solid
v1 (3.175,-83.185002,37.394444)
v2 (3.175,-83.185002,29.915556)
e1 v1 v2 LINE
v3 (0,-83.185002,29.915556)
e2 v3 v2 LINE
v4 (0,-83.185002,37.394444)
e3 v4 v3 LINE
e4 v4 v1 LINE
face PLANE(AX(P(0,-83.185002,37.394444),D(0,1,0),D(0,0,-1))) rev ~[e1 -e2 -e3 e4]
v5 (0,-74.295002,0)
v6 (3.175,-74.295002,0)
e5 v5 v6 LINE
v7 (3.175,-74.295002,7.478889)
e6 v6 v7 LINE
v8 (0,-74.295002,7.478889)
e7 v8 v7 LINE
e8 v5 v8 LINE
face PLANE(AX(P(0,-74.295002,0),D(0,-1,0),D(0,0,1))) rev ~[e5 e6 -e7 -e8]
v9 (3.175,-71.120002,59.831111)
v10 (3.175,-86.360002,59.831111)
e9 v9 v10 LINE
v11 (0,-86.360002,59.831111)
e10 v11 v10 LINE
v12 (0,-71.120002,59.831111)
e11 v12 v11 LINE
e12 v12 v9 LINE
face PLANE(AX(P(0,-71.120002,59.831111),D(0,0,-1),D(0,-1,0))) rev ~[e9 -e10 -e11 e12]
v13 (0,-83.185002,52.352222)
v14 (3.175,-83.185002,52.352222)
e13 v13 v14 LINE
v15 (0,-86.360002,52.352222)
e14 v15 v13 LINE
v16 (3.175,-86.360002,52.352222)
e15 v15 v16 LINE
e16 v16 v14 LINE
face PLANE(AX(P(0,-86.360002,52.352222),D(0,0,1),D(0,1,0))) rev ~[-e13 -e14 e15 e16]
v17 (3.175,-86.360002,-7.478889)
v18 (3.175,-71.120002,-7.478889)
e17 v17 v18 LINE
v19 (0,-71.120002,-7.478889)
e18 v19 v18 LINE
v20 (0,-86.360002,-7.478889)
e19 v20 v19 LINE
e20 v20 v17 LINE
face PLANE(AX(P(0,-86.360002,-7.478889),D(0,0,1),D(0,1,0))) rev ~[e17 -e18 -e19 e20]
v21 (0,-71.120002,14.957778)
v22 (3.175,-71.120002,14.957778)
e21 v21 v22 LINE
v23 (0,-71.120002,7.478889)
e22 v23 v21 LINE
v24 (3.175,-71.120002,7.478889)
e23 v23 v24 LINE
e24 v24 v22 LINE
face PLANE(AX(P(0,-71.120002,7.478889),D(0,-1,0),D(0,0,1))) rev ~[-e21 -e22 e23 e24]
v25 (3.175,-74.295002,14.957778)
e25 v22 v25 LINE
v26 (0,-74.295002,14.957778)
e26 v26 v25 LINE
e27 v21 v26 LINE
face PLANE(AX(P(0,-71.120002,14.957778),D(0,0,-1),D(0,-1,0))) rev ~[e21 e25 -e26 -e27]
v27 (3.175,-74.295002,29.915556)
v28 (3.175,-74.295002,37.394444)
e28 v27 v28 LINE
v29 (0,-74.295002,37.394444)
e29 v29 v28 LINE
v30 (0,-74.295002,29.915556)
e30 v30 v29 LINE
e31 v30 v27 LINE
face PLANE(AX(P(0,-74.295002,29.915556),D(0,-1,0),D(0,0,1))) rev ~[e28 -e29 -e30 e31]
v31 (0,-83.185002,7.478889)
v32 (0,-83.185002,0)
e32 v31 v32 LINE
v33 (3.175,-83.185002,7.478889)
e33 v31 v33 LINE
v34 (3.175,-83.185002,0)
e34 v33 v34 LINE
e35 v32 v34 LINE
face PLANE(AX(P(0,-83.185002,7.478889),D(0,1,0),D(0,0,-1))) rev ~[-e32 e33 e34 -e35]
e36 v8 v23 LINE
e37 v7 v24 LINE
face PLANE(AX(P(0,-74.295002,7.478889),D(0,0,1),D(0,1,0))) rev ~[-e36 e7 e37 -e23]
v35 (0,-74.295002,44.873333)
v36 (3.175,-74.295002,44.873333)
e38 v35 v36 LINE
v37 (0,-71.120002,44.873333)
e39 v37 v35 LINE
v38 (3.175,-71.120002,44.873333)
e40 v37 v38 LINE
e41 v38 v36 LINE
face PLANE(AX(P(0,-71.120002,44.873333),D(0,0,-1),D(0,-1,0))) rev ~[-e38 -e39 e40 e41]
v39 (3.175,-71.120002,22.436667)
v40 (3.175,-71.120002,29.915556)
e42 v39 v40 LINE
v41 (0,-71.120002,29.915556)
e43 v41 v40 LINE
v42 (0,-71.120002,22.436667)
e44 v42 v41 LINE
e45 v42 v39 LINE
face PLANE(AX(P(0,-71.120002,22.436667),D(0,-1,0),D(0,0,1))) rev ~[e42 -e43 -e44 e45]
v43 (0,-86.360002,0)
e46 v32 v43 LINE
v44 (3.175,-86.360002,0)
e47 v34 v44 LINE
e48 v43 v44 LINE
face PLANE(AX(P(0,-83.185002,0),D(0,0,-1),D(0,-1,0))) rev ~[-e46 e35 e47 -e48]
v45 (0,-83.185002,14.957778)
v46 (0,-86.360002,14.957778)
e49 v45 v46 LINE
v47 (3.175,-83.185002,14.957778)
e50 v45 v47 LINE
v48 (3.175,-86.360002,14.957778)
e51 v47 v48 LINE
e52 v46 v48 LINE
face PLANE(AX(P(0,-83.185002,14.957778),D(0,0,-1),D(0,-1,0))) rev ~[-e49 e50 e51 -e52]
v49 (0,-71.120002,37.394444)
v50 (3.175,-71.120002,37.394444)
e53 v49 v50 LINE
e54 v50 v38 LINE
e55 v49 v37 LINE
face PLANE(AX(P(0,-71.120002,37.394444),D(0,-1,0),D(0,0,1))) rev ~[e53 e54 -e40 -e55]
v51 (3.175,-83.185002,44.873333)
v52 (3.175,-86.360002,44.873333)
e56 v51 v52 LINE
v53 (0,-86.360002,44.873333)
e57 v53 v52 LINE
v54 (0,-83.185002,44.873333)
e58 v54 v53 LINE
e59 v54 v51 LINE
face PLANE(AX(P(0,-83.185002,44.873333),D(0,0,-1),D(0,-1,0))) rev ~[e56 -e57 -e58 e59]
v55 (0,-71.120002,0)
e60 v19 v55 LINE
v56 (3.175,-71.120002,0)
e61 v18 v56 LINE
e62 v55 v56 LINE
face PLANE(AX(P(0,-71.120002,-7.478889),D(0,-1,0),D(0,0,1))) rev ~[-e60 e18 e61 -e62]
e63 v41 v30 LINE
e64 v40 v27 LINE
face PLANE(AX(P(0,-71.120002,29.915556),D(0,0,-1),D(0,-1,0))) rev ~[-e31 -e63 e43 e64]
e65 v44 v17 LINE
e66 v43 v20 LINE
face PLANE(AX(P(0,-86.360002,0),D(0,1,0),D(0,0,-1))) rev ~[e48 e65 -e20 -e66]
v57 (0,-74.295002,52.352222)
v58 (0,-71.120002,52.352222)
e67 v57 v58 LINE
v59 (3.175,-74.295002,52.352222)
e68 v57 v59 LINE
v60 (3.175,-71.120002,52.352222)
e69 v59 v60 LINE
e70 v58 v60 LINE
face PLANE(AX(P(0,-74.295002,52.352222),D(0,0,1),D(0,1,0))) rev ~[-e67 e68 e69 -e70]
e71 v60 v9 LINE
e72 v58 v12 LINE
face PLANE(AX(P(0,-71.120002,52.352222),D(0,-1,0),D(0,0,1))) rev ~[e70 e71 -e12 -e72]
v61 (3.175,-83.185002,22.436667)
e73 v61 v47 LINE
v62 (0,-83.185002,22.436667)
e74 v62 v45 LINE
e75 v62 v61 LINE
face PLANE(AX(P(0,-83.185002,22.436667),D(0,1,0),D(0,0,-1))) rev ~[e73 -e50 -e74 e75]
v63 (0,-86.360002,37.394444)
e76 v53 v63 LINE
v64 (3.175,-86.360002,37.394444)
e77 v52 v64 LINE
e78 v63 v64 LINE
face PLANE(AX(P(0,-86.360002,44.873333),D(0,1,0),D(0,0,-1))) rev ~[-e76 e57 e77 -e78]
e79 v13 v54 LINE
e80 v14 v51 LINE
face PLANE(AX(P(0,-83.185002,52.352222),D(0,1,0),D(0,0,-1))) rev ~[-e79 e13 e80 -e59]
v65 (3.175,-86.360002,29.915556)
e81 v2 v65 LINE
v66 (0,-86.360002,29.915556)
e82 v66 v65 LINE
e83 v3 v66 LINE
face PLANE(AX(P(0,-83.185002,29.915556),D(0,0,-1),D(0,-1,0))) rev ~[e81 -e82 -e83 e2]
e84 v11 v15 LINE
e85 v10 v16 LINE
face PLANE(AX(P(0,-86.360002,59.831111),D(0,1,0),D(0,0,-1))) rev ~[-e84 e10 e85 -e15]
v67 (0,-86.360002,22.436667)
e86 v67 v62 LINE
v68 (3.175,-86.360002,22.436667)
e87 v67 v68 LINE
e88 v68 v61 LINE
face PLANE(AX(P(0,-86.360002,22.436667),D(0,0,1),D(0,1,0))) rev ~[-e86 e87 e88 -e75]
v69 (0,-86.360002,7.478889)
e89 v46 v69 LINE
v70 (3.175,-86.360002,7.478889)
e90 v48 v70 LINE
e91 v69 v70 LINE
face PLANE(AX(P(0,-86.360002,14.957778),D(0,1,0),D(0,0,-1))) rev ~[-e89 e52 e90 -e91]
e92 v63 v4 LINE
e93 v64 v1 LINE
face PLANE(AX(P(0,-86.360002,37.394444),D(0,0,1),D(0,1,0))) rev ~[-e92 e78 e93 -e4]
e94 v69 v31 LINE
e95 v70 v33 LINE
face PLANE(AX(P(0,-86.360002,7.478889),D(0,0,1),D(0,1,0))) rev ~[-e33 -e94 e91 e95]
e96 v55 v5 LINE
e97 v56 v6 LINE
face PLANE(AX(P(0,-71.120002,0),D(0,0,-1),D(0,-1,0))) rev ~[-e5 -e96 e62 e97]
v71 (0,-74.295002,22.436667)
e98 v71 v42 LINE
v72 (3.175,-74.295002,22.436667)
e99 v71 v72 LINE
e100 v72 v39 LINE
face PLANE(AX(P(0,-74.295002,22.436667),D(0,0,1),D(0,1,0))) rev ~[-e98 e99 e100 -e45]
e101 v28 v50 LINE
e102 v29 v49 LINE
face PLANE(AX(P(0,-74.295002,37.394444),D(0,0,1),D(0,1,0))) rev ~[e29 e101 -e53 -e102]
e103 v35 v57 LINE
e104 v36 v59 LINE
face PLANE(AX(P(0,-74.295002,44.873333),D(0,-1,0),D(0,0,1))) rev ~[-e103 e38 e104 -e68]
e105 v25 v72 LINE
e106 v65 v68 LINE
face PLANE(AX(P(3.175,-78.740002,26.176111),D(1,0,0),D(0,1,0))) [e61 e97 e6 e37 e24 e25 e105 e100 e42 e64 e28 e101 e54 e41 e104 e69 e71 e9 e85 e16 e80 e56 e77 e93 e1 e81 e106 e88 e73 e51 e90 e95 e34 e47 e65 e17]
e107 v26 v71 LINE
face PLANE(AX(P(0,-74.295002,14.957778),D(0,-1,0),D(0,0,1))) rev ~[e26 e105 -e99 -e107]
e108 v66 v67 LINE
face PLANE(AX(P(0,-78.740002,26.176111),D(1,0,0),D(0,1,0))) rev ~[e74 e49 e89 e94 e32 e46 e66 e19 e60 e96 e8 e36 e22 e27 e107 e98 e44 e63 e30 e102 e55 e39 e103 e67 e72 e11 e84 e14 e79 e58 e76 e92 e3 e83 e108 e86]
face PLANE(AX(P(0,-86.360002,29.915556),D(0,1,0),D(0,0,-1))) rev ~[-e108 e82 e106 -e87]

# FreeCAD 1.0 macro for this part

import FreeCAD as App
import Part
import Sketcher
from FreeCAD import Vector
Q = App.Units.Quantity


def add_polygon(sketch, points):
    """Adds a closed chain of lines whose ends are joined by coincident constraints."""
    first, n = sketch.GeometryCount, len(points)
    for a, b in zip(points, points[1:] + points[:1]):
        sketch.addGeometry(Part.LineSegment(App.Vector(*a, 0), App.Vector(*b, 0)), False)
    for i in range(n):
        sketch.addConstraint(Sketcher.Constraint("Coincident", first + i, 2, first + (i + 1) % n, 1))

doc = App.newDocument("Part")
body = doc.addObject("PartDesign::Body", "Body")

# Sketch on YZ plane
sketch1 = doc.addObject("Sketcher::SketchObject", "Sketch")
body.addObject(sketch1)
sketch1.AttachmentSupport = (doc.YZ_Plane, [""])
sketch1.MapMode = "FlatFace"
add_polygon(sketch1, [(-71.1, 59.8), (-86.4, 59.8), (-86.4, 52.4), (-83.2, 52.4), (-83.2, 44.9), (-86.4, 44.9), (-86.4, 37.4), (-83.2, 37.4), (-83.2, 29.9), (-86.4, 29.9), (-86.4, 22.4), (-83.2, 22.4), (-83.2, 15), (-86.4, 15), (-86.4, 7.5), (-83.2, 7.5), (-83.2, 0), (-86.4, 0), (-86.4, -7.5), (-71.1, -7.5), (-71.1, 0), (-74.3, 0), (-74.3, 7.5), (-71.1, 7.5), (-71.1, 15), (-74.3, 15), (-74.3, 22.4), (-71.1, 22.4), (-71.1, 29.9), (-74.3, 29.9), (-74.3, 37.4), (-71.1, 37.4), (-71.1, 44.9), (-74.3, 44.9), (-74.3, 52.4), (-71.1, 52.4)])  # lines 0-35
sketch1.addConstraint([
    Sketcher.Constraint("Horizontal", 0),
    Sketcher.Constraint("Vertical", 1),
    Sketcher.Constraint("Horizontal", 2),
    Sketcher.Constraint("Vertical", 3),
    Sketcher.Constraint("Horizontal", 4),
    Sketcher.Constraint("Vertical", 5),
    Sketcher.Constraint("Horizontal", 6),
    Sketcher.Constraint("Vertical", 7),
    Sketcher.Constraint("Horizontal", 8),
    Sketcher.Constraint("Vertical", 9),
    Sketcher.Constraint("Horizontal", 10),
    Sketcher.Constraint("Vertical", 11),
    Sketcher.Constraint("Horizontal", 12),
    Sketcher.Constraint("Vertical", 13),
    Sketcher.Constraint("Horizontal", 14),
    Sketcher.Constraint("Vertical", 15),
    Sketcher.Constraint("Horizontal", 16),
    Sketcher.Constraint("Vertical", 17),
    Sketcher.Constraint("Horizontal", 18),
    Sketcher.Constraint("Vertical", 19),
    Sketcher.Constraint("Horizontal", 20),
    Sketcher.Constraint("Vertical", 21),
    Sketcher.Constraint("Horizontal", 22),
    Sketcher.Constraint("Vertical", 23),
    Sketcher.Constraint("Horizontal", 24),
    Sketcher.Constraint("Vertical", 25),
    Sketcher.Constraint("Horizontal", 26),
    Sketcher.Constraint("Vertical", 27),
    Sketcher.Constraint("Horizontal", 28),
    Sketcher.Constraint("Vertical", 29),
    Sketcher.Constraint("Horizontal", 30),
    Sketcher.Constraint("Vertical", 31),
    Sketcher.Constraint("Horizontal", 32),
    Sketcher.Constraint("Vertical", 33),
    Sketcher.Constraint("Horizontal", 34),
    Sketcher.Constraint("Vertical", 35),
    Sketcher.Constraint("Symmetric", 13, 2, 17, 2, -1),
    Sketcher.Constraint("Symmetric", 18, 2, 22, 2, -1),
    Sketcher.Constraint("PointOnObject", 15, 2, -1),
    Sketcher.Constraint("PointOnObject", 19, 2, -1),
    Sketcher.Constraint("Horizontal", 12, 2, 23, 2),
    Sketcher.Constraint("Horizontal", 10, 2, 25, 2),
    Sketcher.Constraint("Horizontal", 8, 2, 27, 2),
    Sketcher.Constraint("Horizontal", 6, 2, 29, 2),
    Sketcher.Constraint("Horizontal", 4, 2, 31, 2),
    Sketcher.Constraint("Horizontal", 2, 2, 33, 2),
    Sketcher.Constraint("Vertical", 1, 2, 4, 2),
    Sketcher.Constraint("Vertical", 3, 2, 6, 2),
    Sketcher.Constraint("Vertical", 5, 2, 8, 2),
    Sketcher.Constraint("Vertical", 7, 2, 10, 2),
    Sketcher.Constraint("Vertical", 9, 2, 12, 2),
    Sketcher.Constraint("Vertical", 11, 2, 14, 2),
    Sketcher.Constraint("Vertical", 21, 2, 24, 2),
    Sketcher.Constraint("Vertical", 23, 2, 26, 2),
    Sketcher.Constraint("Vertical", 25, 2, 28, 2),
    Sketcher.Constraint("Vertical", 27, 2, 30, 2),
    Sketcher.Constraint("Vertical", 29, 2, 32, 2),
    Sketcher.Constraint("Vertical", 31, 2, 34, 2),
    Sketcher.Constraint("Equal", 16, 20),
    Sketcher.Constraint("Equal", 1, 3),
    Sketcher.Constraint("Equal", 3, 5),
    Sketcher.Constraint("Equal", 5, 7),
    Sketcher.Constraint("Equal", 7, 9),
    Sketcher.Constraint("Equal", 9, 11),
    Sketcher.Constraint("Equal", 11, 13),
    Sketcher.Constraint("Equal", 13, 15),
    Sketcher.Constraint("DistanceX", 0, 2, 0, 1, Q("0.6 in")),
    Sketcher.Constraint("DistanceX", 0, 2, -1, 1, Q("3.4000001 in")),
    Sketcher.Constraint("DistanceX", 2, 1, 2, 2, Q("0.125 in")),
    Sketcher.Constraint("DistanceY", 1, 2, 1, 1, 7.478889),
])
pad1 = doc.addObject("PartDesign::Pad", "Pad")
body.addObject(pad1)
pad1.Profile = sketch1
pad1.Length = Q("0.125 in")

doc.recompute()
